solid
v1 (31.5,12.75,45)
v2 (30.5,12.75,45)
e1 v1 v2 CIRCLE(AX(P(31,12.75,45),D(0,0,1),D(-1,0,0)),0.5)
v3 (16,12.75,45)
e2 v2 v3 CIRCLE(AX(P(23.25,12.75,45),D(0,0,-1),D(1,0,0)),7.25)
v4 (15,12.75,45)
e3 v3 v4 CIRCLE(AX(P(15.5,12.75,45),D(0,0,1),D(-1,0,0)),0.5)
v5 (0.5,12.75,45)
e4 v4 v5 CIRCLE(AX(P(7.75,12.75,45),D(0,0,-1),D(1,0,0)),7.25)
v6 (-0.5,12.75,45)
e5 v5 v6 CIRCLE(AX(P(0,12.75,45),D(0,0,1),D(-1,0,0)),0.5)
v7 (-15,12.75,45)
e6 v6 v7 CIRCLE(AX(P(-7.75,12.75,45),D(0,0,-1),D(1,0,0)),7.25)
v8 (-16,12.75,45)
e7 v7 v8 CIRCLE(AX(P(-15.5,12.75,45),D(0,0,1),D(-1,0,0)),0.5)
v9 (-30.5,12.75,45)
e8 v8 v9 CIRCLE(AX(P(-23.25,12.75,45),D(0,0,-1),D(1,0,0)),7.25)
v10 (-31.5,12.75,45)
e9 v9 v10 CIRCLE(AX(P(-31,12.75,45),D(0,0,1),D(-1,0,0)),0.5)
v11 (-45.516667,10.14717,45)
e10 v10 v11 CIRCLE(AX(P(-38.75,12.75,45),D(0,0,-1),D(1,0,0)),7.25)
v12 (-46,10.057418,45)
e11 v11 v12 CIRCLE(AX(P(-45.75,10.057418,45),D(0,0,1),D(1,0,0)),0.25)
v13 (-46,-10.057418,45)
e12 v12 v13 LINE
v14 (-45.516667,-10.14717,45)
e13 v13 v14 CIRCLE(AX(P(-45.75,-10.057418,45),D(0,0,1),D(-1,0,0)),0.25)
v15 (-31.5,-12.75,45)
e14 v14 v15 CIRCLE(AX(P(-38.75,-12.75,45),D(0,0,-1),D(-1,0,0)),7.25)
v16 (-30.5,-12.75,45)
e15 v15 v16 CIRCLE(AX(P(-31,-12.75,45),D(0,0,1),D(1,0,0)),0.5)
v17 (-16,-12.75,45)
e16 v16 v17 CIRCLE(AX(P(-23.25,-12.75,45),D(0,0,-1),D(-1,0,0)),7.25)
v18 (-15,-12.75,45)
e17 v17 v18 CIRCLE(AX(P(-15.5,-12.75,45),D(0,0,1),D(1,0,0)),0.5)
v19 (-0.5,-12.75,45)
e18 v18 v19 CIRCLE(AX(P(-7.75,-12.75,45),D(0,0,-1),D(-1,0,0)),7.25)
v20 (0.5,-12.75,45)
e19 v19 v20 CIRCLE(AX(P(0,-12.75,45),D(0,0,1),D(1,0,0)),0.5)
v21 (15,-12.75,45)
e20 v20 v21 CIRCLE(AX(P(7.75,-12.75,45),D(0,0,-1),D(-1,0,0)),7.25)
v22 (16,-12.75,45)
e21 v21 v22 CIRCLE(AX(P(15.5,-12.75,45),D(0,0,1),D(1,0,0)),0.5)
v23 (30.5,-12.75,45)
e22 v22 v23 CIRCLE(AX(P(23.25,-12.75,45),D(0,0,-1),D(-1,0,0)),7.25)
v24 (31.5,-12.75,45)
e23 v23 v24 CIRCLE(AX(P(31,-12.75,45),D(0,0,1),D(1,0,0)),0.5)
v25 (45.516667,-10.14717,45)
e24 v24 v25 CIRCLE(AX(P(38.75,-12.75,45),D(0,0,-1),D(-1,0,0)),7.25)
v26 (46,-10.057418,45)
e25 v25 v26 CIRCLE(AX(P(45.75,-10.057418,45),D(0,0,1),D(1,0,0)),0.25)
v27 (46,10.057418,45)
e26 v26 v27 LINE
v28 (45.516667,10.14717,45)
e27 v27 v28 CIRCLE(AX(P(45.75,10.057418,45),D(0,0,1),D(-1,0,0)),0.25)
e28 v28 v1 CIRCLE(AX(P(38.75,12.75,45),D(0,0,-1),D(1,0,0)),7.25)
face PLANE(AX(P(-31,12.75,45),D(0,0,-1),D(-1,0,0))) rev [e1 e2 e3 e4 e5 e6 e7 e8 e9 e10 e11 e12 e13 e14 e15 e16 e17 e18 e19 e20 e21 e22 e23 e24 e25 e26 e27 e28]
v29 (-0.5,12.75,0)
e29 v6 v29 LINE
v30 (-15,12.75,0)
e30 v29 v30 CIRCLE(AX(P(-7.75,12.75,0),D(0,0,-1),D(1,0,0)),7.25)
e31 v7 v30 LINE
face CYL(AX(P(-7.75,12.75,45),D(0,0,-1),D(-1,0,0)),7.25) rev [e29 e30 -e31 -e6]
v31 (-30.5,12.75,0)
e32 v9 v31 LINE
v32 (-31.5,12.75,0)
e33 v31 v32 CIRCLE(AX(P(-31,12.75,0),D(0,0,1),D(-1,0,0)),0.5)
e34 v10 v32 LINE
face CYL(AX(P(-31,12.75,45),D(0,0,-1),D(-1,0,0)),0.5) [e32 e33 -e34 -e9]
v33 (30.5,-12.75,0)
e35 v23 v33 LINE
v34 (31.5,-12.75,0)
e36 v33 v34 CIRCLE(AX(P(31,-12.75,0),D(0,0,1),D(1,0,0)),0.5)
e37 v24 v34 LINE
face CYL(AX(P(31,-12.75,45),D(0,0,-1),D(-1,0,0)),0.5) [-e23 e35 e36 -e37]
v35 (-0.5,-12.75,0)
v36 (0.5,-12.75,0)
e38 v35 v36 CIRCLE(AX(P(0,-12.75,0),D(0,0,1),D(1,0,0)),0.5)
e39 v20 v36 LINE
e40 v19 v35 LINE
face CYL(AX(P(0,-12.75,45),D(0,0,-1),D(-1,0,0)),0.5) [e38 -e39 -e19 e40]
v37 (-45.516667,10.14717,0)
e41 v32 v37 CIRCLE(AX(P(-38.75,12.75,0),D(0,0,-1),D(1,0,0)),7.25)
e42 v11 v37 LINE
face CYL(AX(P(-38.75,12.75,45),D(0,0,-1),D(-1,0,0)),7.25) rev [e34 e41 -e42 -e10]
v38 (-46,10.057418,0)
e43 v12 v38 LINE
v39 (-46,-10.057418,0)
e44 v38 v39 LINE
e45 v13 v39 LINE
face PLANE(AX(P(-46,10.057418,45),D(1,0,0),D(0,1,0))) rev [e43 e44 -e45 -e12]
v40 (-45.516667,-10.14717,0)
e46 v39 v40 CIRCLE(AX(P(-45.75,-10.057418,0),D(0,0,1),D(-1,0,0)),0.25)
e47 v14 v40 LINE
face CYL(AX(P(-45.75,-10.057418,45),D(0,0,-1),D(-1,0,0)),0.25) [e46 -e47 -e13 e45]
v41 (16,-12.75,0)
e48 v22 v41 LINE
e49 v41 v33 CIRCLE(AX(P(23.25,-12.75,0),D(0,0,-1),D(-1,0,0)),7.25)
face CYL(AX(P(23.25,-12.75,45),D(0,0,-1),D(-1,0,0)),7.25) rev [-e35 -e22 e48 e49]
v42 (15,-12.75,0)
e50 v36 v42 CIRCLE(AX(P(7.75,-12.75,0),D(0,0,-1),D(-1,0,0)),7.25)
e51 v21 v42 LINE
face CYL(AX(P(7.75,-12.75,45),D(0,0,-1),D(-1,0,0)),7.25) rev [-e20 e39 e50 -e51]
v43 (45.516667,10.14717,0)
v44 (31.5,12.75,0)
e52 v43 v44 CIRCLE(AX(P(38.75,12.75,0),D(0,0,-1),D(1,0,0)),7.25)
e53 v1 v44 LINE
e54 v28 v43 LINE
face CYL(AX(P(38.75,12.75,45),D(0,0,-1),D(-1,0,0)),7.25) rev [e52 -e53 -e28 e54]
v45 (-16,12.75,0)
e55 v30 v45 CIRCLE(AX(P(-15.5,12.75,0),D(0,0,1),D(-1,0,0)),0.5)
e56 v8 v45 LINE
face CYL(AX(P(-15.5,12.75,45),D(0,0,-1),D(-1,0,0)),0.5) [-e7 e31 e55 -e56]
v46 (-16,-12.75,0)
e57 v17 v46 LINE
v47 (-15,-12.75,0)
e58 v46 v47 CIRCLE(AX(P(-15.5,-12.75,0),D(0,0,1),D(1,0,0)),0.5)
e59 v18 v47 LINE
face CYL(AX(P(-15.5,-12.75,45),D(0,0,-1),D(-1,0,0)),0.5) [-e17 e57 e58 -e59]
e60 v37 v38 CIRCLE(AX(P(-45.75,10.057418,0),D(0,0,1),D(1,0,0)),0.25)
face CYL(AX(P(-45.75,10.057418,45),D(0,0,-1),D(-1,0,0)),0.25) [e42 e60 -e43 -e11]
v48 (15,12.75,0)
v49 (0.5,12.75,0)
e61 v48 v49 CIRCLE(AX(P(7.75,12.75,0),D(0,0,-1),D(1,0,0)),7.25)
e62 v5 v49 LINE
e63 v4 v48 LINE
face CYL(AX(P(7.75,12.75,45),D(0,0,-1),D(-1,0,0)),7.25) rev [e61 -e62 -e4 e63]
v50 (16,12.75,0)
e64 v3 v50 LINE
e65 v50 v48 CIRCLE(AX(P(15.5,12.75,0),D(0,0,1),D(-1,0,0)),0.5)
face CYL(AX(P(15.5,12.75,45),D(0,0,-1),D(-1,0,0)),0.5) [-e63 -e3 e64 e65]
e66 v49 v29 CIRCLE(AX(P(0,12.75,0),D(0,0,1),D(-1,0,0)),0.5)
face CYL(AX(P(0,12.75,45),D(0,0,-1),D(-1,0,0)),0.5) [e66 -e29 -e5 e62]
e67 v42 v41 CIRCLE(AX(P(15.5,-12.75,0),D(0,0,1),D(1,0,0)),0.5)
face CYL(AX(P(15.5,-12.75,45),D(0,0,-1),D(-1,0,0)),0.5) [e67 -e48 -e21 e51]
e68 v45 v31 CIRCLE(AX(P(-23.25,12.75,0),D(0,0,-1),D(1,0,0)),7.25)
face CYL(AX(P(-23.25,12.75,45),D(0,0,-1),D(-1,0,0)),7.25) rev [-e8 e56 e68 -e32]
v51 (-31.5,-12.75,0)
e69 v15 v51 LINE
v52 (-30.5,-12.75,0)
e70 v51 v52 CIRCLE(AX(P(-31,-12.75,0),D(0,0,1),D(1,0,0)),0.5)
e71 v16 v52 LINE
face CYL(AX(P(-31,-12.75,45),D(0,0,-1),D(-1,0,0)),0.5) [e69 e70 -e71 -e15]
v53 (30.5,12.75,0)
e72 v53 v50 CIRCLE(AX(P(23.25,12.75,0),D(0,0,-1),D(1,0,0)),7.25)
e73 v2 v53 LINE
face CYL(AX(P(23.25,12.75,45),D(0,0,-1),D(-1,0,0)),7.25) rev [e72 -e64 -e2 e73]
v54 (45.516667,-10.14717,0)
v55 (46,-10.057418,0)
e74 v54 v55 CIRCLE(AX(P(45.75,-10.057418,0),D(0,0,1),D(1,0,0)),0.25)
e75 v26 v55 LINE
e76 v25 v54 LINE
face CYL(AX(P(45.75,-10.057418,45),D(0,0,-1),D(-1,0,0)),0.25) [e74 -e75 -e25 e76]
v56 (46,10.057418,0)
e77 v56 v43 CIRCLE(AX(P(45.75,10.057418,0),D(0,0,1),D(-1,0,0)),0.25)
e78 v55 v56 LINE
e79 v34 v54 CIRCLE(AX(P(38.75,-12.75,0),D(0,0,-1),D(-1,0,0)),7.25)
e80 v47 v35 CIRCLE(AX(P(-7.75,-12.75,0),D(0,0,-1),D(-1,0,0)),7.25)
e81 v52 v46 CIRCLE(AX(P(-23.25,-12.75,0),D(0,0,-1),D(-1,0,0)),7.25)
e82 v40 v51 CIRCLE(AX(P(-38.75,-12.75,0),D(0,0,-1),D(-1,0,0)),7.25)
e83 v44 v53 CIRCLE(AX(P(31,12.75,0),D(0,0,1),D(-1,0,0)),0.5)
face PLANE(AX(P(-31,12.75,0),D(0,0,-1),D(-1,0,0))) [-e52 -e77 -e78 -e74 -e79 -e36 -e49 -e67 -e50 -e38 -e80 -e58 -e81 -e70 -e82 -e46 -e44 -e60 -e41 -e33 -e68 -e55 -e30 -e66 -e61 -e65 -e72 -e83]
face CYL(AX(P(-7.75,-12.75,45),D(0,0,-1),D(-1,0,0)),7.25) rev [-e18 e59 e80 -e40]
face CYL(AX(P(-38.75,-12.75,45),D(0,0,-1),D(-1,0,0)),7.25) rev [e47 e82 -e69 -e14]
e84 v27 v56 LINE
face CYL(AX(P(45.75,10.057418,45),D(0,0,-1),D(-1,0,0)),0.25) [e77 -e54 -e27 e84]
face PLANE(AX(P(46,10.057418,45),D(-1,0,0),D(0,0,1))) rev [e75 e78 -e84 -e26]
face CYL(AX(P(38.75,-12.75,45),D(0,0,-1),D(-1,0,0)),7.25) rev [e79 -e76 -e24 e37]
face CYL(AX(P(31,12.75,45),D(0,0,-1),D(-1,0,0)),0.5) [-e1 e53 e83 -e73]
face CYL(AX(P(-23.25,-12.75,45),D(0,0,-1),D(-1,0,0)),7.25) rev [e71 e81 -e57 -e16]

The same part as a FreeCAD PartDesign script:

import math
import FreeCAD as App
import Part
import Sketcher

V = App.Vector

doc = App.newDocument("Part")
params = doc.addObject("Spreadsheet::Sheet", "Params")
for row, (alias, value) in enumerate([
    ("sketch1_radius", "0.5 mm"),
    ("sketch1_radius2", "0.25 mm"),
    ("sketch1_radius3", "7.25 mm"),
    ("pad1_length", "45 mm"),
], start=1):
    params.set(f"A{row}", alias)
    params.set(f"B{row}", "=" + value)
    params.setAlias(f"B{row}", alias)

body = doc.addObject("PartDesign::Body", "Body")

# Sketch on XY plane
sketch1 = body.newObject("Sketcher::SketchObject", "Sketch")
sketch1.AttachmentSupport = (doc.getObject("XY_Plane"), [""])
sketch1.MapMode = "FlatFace"
sketch1.addGeometry([
    Part.LineSegment(V(-46, 10.06, 0), V(-46, -10.06, 0)),  # 0
    Part.ArcOfCircle(Part.Circle(V(-45.75, -10.06, 0), V(0, 0, 1), 0.25), math.radians(180), math.radians(339)),  # 1
    Part.ArcOfCircle(Part.Circle(V(-38.75, -12.75, 0), V(0, 0, 1), 7.25), math.radians(0), math.radians(159)),  # 2
    Part.ArcOfCircle(Part.Circle(V(-31, -12.75, 0), V(0, 0, 1), 0.5), math.radians(180), math.radians(360)),  # 3
    Part.ArcOfCircle(Part.Circle(V(-23.25, -12.75, 0), V(0, 0, 1), 7.25), math.radians(0), math.radians(180)),  # 4
    Part.ArcOfCircle(Part.Circle(V(-15.5, -12.75, 0), V(0, 0, 1), 0.5), math.radians(180), math.radians(360)),  # 5
    Part.ArcOfCircle(Part.Circle(V(-7.75, -12.75, 0), V(0, 0, 1), 7.25), math.radians(0), math.radians(180)),  # 6
    Part.ArcOfCircle(Part.Circle(V(0, -12.75, 0), V(0, 0, 1), 0.5), math.radians(180), math.radians(360)),  # 7
    Part.ArcOfCircle(Part.Circle(V(7.75, -12.75, 0), V(0, 0, 1), 7.25), math.radians(0), math.radians(180)),  # 8
    Part.ArcOfCircle(Part.Circle(V(15.5, -12.75, 0), V(0, 0, 1), 0.5), math.radians(180), math.radians(360)),  # 9
    Part.ArcOfCircle(Part.Circle(V(23.25, -12.75, 0), V(0, 0, 1), 7.25), math.radians(0), math.radians(180)),  # 10
    Part.ArcOfCircle(Part.Circle(V(31, -12.75, 0), V(0, 0, 1), 0.5), math.radians(180), math.radians(360)),  # 11
    Part.ArcOfCircle(Part.Circle(V(38.75, -12.75, 0), V(0, 0, 1), 7.25), math.radians(21), math.radians(180)),  # 12
    Part.ArcOfCircle(Part.Circle(V(45.75, -10.06, 0), V(0, 0, 1), 0.25), math.radians(-159), math.radians(0)),  # 13
    Part.LineSegment(V(46, -10.06, 0), V(46, 10.06, 0)),  # 14
    Part.ArcOfCircle(Part.Circle(V(45.75, 10.06, 0), V(0, 0, 1), 0.25), math.radians(0), math.radians(159)),  # 15
    Part.ArcOfCircle(Part.Circle(V(38.75, 12.75, 0), V(0, 0, 1), 7.25), math.radians(180), math.radians(339)),  # 16
    Part.ArcOfCircle(Part.Circle(V(31, 12.75, 0), V(0, 0, 1), 0.5), math.radians(0), math.radians(180)),  # 17
    Part.ArcOfCircle(Part.Circle(V(23.25, 12.75, 0), V(0, 0, 1), 7.25), math.radians(180), math.radians(360)),  # 18
    Part.ArcOfCircle(Part.Circle(V(15.5, 12.75, 0), V(0, 0, 1), 0.5), math.radians(0), math.radians(180)),  # 19
    Part.ArcOfCircle(Part.Circle(V(7.75, 12.75, 0), V(0, 0, 1), 7.25), math.radians(180), math.radians(360)),  # 20
    Part.ArcOfCircle(Part.Circle(V(0, 12.75, 0), V(0, 0, 1), 0.5), math.radians(0), math.radians(180)),  # 21
    Part.ArcOfCircle(Part.Circle(V(-7.75, 12.75, 0), V(0, 0, 1), 7.25), math.radians(180), math.radians(360)),  # 22
    Part.ArcOfCircle(Part.Circle(V(-15.5, 12.75, 0), V(0, 0, 1), 0.5), math.radians(0), math.radians(180)),  # 23
    Part.ArcOfCircle(Part.Circle(V(-23.25, 12.75, 0), V(0, 0, 1), 7.25), math.radians(180), math.radians(360)),  # 24
    Part.ArcOfCircle(Part.Circle(V(-31, 12.75, 0), V(0, 0, 1), 0.5), math.radians(0), math.radians(180)),  # 25
    Part.ArcOfCircle(Part.Circle(V(-38.75, 12.75, 0), V(0, 0, 1), 7.25), math.radians(-159), math.radians(0)),  # 26
    Part.ArcOfCircle(Part.Circle(V(-45.75, 10.06, 0), V(0, 0, 1), 0.25), math.radians(21), math.radians(180)),  # 27
], False)
sketch1.addConstraint([
    Sketcher.Constraint("Tangent", 0, 2, 1, 1),
    Sketcher.Constraint("Tangent", 1, 2, 2, 2),
    Sketcher.Constraint("Tangent", 2, 1, 3, 1),
    Sketcher.Constraint("Tangent", 3, 2, 4, 2),
    Sketcher.Constraint("Tangent", 4, 1, 5, 1),
    Sketcher.Constraint("Tangent", 5, 2, 6, 2),
    Sketcher.Constraint("Tangent", 6, 1, 7, 1),
    Sketcher.Constraint("Tangent", 7, 2, 8, 2),
    Sketcher.Constraint("Tangent", 8, 1, 9, 1),
    Sketcher.Constraint("Tangent", 9, 2, 10, 2),
    Sketcher.Constraint("Tangent", 10, 1, 11, 1),
    Sketcher.Constraint("Tangent", 11, 2, 12, 2),
    Sketcher.Constraint("Tangent", 12, 1, 13, 1),
    Sketcher.Constraint("Tangent", 13, 2, 14, 1),
    Sketcher.Constraint("Tangent", 14, 2, 15, 1),
    Sketcher.Constraint("Tangent", 15, 2, 16, 2),
    Sketcher.Constraint("Tangent", 16, 1, 17, 1),
    Sketcher.Constraint("Tangent", 17, 2, 18, 2),
    Sketcher.Constraint("Tangent", 18, 1, 19, 1),
    Sketcher.Constraint("Tangent", 19, 2, 20, 2),
    Sketcher.Constraint("Tangent", 20, 1, 21, 1),
    Sketcher.Constraint("Tangent", 21, 2, 22, 2),
    Sketcher.Constraint("Tangent", 22, 1, 23, 1),
    Sketcher.Constraint("Tangent", 23, 2, 24, 2),
    Sketcher.Constraint("Tangent", 24, 1, 25, 1),
    Sketcher.Constraint("Tangent", 25, 2, 26, 2),
    Sketcher.Constraint("Tangent", 26, 1, 27, 1),
    Sketcher.Constraint("Tangent", 27, 2, 0, 1),
    Sketcher.Constraint("Vertical", 0),
    Sketcher.Constraint("Vertical", 14),
    Sketcher.Constraint("Equal", 2, 4),
    Sketcher.Constraint("Equal", 3, 5),
    Sketcher.Constraint("Equal", 4, 6),
    Sketcher.Constraint("Equal", 5, 7),
    Sketcher.Constraint("Equal", 6, 8),
    Sketcher.Constraint("Equal", 7, 9),
    Sketcher.Constraint("Equal", 8, 10),
    Sketcher.Constraint("Equal", 9, 11),
    Sketcher.Constraint("Equal", 10, 12),
    Sketcher.Constraint("Equal", 1, 13),
    Sketcher.Constraint("Equal", 13, 15),
    Sketcher.Constraint("Equal", 12, 16),
    Sketcher.Constraint("Equal", 11, 17),
    Sketcher.Constraint("Equal", 16, 18),
    Sketcher.Constraint("Equal", 17, 19),
    Sketcher.Constraint("Equal", 18, 20),
    Sketcher.Constraint("Equal", 19, 21),
    Sketcher.Constraint("Equal", 20, 22),
    Sketcher.Constraint("Equal", 21, 23),
    Sketcher.Constraint("Equal", 22, 24),
    Sketcher.Constraint("Equal", 23, 25),
    Sketcher.Constraint("Equal", 24, 26),
    Sketcher.Constraint("Equal", 15, 27),
    Sketcher.Constraint("Symmetric", 1, 3, 15, 3, -1, 1),
    Sketcher.Constraint("Symmetric", 3, 3, 17, 3, -1, 1),
    Sketcher.Constraint("Symmetric", 6, 3, 8, 3, -2),
    Sketcher.Constraint("Horizontal", 2, 3, 3, 3),
    Sketcher.Constraint("Horizontal", 3, 3, 4, 3),
    Sketcher.Constraint("Horizontal", 4, 3, 5, 3),
    Sketcher.Constraint("Horizontal", 5, 3, 6, 3),
    Sketcher.Constraint("Horizontal", 6, 3, 7, 3),
    Sketcher.Constraint("Horizontal", 8, 3, 9, 3),
    Sketcher.Constraint("Horizontal", 9, 3, 10, 3),
    Sketcher.Constraint("Horizontal", 10, 3, 11, 3),
    Sketcher.Constraint("Horizontal", 11, 3, 12, 3),
    Sketcher.Constraint("Horizontal", 17, 3, 18, 3),
    Sketcher.Constraint("Horizontal", 18, 3, 19, 3),
    Sketcher.Constraint("Horizontal", 19, 3, 20, 3),
    Sketcher.Constraint("Horizontal", 20, 3, 21, 3),
    Sketcher.Constraint("Horizontal", 21, 3, 22, 3),
    Sketcher.Constraint("Horizontal", 22, 3, 23, 3),
    Sketcher.Constraint("Horizontal", 23, 3, 24, 3),
    Sketcher.Constraint("Horizontal", 24, 3, 25, 3),
    Sketcher.Constraint("Horizontal", 25, 3, 26, 3),
    Sketcher.Constraint("Radius", 3, 0.5),
    Sketcher.Constraint("Radius", 1, 0.25),
    Sketcher.Constraint("Radius", 2, 7.25),
    Sketcher.Constraint("DistanceX", 0, 2, -1, 1, 46.0),
    Sketcher.Constraint("DistanceY", 12, 3, 16, 3, 25.5),
])
sketch1.setExpression("Constraints[74]", "Params.sketch1_radius")
sketch1.setExpression("Constraints[75]", "Params.sketch1_radius2")
sketch1.setExpression("Constraints[76]", "Params.sketch1_radius3")
pad1 = body.newObject("PartDesign::Pad", "Pad")
pad1.Profile = sketch1
pad1.setExpression("Length", "Params.pad1_length")

doc.recompute()
